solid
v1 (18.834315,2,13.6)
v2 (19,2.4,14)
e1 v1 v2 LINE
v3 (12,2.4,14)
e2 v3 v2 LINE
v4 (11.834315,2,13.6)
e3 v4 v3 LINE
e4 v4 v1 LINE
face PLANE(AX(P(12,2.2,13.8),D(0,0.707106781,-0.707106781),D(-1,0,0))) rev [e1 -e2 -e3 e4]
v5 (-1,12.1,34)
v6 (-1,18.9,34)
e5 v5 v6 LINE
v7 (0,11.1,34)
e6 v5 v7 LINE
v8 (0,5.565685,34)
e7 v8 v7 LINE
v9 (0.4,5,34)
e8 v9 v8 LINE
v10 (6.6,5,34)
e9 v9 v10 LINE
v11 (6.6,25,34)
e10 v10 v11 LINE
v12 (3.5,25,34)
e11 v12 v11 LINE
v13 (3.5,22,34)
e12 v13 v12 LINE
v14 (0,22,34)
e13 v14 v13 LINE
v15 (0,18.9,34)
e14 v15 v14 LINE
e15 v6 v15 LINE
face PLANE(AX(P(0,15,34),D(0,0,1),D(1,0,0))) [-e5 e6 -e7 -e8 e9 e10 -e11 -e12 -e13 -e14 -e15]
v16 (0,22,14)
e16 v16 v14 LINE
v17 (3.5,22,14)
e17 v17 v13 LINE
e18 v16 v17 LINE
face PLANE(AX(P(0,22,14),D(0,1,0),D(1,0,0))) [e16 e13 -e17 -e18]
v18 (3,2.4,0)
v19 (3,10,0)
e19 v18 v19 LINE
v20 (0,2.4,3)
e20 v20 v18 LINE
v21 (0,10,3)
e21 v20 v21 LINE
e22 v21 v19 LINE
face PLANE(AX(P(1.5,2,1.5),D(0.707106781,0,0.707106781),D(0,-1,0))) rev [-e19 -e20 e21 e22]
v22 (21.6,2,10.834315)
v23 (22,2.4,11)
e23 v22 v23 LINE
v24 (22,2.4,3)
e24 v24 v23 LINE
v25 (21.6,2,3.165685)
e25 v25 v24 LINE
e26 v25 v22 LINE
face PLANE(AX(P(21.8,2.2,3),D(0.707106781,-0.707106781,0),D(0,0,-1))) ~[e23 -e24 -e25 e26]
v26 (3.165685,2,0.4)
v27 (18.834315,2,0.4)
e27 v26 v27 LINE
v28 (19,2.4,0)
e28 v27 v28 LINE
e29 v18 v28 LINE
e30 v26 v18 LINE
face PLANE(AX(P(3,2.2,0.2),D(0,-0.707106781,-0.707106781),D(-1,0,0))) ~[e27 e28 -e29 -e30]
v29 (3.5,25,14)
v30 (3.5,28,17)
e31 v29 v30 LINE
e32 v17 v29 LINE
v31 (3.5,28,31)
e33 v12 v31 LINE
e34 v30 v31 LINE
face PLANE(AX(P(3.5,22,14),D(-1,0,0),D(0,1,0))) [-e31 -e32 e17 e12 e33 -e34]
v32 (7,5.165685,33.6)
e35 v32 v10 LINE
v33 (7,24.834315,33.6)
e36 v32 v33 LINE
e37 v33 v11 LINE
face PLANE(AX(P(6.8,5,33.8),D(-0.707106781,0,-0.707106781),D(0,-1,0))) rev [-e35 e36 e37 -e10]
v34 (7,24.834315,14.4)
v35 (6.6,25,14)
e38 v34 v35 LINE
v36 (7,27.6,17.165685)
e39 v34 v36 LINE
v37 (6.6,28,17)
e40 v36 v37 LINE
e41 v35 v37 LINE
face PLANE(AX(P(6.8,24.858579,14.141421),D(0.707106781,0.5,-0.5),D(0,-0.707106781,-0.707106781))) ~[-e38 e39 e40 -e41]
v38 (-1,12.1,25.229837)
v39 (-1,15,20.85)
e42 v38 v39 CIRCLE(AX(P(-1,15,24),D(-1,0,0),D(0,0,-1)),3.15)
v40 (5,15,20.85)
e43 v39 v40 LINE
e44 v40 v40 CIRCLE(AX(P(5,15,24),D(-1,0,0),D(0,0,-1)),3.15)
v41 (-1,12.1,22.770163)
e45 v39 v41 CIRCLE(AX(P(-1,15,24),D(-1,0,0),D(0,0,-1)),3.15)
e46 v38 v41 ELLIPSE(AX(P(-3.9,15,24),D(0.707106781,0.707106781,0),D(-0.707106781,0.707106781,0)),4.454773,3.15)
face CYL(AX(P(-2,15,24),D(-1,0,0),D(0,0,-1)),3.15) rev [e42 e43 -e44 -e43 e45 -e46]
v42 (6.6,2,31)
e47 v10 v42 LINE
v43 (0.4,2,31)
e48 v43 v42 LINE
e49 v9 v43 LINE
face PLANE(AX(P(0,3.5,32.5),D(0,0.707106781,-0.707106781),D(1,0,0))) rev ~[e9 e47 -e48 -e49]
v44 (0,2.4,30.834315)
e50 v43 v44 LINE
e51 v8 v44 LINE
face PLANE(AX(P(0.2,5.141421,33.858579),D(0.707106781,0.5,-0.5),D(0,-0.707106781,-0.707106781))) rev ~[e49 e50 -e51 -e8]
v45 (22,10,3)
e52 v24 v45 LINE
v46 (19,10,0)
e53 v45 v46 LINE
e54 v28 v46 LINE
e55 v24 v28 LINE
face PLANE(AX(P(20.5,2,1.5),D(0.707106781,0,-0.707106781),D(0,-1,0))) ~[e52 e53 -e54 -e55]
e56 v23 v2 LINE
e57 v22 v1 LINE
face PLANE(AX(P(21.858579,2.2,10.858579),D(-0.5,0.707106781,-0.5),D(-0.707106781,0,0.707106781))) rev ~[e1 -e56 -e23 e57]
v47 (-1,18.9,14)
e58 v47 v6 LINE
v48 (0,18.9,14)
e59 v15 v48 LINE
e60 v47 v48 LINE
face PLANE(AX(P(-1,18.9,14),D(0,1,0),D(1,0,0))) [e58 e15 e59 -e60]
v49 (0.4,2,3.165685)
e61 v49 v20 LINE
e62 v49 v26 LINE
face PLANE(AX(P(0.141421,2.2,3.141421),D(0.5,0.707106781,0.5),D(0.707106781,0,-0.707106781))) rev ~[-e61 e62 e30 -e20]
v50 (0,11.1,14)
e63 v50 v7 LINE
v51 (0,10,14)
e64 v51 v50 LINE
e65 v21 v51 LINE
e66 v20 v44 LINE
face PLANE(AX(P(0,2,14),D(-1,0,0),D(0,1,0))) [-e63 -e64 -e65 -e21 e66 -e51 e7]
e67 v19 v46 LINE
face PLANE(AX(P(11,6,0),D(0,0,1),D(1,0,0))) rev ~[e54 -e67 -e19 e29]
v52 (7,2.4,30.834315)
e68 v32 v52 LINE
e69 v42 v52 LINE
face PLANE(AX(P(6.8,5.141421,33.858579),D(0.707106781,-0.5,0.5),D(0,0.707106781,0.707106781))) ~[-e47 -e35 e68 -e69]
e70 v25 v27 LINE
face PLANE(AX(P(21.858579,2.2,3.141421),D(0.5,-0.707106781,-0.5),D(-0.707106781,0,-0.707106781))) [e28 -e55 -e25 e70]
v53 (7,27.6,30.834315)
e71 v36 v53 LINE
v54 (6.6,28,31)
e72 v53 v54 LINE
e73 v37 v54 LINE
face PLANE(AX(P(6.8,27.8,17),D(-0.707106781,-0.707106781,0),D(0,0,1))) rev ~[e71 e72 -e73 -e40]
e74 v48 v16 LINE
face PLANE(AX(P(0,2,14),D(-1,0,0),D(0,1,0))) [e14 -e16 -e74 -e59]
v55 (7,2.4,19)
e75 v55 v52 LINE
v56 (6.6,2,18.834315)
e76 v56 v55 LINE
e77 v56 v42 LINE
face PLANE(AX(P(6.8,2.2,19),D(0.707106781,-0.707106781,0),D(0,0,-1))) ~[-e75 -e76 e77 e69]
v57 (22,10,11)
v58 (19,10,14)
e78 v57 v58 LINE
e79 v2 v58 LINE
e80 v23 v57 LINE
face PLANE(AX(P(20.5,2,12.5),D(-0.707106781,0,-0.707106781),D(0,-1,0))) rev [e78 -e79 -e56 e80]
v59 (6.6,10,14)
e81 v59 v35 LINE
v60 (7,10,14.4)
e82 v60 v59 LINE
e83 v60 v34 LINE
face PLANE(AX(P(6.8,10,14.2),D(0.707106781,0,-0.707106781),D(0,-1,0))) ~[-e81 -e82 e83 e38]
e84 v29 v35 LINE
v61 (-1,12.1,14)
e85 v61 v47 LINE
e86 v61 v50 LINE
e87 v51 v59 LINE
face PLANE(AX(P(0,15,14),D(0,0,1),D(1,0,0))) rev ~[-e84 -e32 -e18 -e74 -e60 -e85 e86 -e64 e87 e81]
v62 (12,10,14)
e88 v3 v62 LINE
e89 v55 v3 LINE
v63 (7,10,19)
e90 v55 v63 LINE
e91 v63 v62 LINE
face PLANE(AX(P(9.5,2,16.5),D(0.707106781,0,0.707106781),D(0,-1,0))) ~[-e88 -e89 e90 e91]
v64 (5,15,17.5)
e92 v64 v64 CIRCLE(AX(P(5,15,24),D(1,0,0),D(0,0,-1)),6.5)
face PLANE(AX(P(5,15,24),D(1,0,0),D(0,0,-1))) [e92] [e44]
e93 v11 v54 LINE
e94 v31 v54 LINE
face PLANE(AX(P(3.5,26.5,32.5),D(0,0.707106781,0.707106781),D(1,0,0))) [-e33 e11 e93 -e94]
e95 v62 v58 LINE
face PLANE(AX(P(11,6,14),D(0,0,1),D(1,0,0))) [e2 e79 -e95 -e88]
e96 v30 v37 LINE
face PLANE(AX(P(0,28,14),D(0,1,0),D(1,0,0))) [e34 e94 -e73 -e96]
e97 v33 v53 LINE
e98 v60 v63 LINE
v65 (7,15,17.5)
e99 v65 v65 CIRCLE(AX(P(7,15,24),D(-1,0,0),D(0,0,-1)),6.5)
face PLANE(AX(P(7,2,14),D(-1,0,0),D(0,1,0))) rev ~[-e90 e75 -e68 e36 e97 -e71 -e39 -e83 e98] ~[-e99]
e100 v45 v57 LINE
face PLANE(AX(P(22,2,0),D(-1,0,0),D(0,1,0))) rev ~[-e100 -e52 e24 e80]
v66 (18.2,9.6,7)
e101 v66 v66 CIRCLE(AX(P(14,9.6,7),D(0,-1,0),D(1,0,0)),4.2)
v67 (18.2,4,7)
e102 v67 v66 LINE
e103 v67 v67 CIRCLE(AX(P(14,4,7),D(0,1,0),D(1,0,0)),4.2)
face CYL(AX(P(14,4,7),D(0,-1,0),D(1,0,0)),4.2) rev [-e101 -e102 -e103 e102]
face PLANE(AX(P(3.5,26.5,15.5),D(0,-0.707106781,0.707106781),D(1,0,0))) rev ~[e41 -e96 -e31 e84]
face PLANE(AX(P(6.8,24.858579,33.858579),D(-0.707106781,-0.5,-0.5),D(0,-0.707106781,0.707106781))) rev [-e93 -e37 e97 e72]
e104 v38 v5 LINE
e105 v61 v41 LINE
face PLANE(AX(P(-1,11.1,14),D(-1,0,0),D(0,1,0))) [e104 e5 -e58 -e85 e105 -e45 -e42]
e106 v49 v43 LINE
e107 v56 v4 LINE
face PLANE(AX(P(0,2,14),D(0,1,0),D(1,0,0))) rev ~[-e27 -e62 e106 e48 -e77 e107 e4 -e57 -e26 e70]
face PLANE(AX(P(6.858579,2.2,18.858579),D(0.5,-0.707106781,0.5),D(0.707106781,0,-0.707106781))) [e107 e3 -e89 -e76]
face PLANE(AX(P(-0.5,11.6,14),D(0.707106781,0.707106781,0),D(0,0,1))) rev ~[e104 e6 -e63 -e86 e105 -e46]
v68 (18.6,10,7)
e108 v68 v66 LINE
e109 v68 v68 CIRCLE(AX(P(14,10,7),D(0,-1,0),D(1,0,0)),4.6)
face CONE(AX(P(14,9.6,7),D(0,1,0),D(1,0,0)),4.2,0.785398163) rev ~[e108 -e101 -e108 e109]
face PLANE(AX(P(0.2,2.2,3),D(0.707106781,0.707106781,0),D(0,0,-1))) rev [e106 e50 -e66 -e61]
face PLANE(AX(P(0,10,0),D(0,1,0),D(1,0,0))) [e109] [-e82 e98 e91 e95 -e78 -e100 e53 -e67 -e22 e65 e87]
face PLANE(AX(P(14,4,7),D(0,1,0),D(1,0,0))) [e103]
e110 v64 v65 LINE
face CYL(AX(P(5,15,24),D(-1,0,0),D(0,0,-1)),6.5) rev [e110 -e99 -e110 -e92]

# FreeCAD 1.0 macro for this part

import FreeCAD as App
import Part
import Sketcher

V = App.Vector
Q = App.Units.Quantity


def edges_at(feature, points):
    """Names of the edges that pass closest to the given points."""
    edges = feature.Shape.Edges
    near = lambda p: min(range(len(edges)), key=lambda i: edges[i].distToShape(Part.Vertex(*p))[0])
    return sorted({f"Edge{near(p) + 1}" for p in points})

doc = App.newDocument("Part")
body = doc.addObject("PartDesign::Body", "Body")

# Sketch on XZ plane
sketch1 = body.newObject("Sketcher::SketchObject", "Sketch")
sketch1.AttachmentSupport = (doc.getObject("XZ_Plane"), [""])
sketch1.MapMode = "FlatFace"
sketch1.AttachmentOffset = App.Placement(V(0, 0, -4), App.Rotation())
sketch1.addGeometry(Part.Circle(V(14, 7, 0), V(0, 0, 1), 4.2), False)
sketch1.addConstraint([
    Sketcher.Constraint("Diameter", 0, Q("8.4 mm")),
    Sketcher.Constraint("DistanceX", -1, 1, 0, 3, Q("14 mm")),
    Sketcher.Constraint("DistanceY", -1, 1, 0, 3, Q("7 mm")),
])
pad1 = body.newObject("PartDesign::Pad", "Pad")
pad1.Profile = sketch1
pad1.Length = 10
pad1.Reversed = True
body2 = doc.addObject("PartDesign::Body", "Body001")

# Sketch on YZ plane
sketch2 = body2.newObject("Sketcher::SketchObject", "Sketch001")
sketch2.AttachmentSupport = (doc.getObject("YZ_Plane001"), [""])
sketch2.MapMode = "FlatFace"
sketch2.AttachmentOffset = App.Placement(V(0, 0, 5), App.Rotation())
sketch2.addGeometry(Part.Circle(V(15, 24, 0), V(0, 0, 1), 6), False)
sketch2.addConstraint([
    Sketcher.Constraint("Diameter", 0, Q("13 mm")),
    Sketcher.Constraint("DistanceX", -1, 1, 0, 3, Q("15 mm")),
    Sketcher.Constraint("DistanceY", -1, 1, 0, 3, Q("24 mm")),
])
pad2 = body2.newObject("PartDesign::Pad", "Pad001")
pad2.Profile = sketch2
pad2.Length = 10
body3 = doc.addObject("PartDesign::Body", "Body002")

# Sketch on YZ plane
sketch3 = body3.newObject("Sketcher::SketchObject", "Sketch002")
sketch3.AttachmentSupport = (doc.getObject("YZ_Plane002"), [""])
sketch3.MapMode = "FlatFace"
sketch3.AttachmentOffset = App.Placement(V(0, 0, -2), App.Rotation())
sketch3.addGeometry(Part.Circle(V(15, 24, 0), V(0, 0, 1), 3.1), False)
sketch3.addConstraint([
    Sketcher.Constraint("Diameter", 0, Q("6.3 mm")),
    Sketcher.Constraint("DistanceX", -1, 1, 0, 3, Q("15 mm")),
    Sketcher.Constraint("DistanceY", -1, 1, 0, 3, Q("24 mm")),
])
pad3 = body3.newObject("PartDesign::Pad", "Pad002")
pad3.Profile = sketch3
pad3.Length = 10
doc.recompute()

boolean = body3.newObject("PartDesign::Boolean", "Boolean")
boolean.Type = "Fuse"
boolean.addObjects([body2])
body4 = doc.addObject("PartDesign::Body", "Body003")

# Sketch on XY plane
sketch4 = body4.newObject("Sketcher::SketchObject", "Sketch003")
sketch4.AttachmentSupport = (doc.getObject("XY_Plane003"), [""])
sketch4.MapMode = "FlatFace"
sketch4.AttachmentOffset = App.Placement(V(0, 0, 14), App.Rotation())
sketch4.addGeometry([
    Part.LineSegment(V(0, 30, 0), V(0, 22, 0)),
    Part.LineSegment(V(0, 22, 0), V(3.5, 22, 0)),
    Part.LineSegment(V(3.5, 22, 0), V(3.5, 30, 0)),
    Part.LineSegment(V(3.5, 30, 0), V(0, 30, 0)),
], False)
sketch4.addConstraint([
    Sketcher.Constraint("Coincident", 0, 2, 1, 1),
    Sketcher.Constraint("Coincident", 1, 2, 2, 1),
    Sketcher.Constraint("Coincident", 2, 2, 3, 1),
    Sketcher.Constraint("Coincident", 3, 2, 0, 1),
    Sketcher.Constraint("Vertical", 0),
    Sketcher.Constraint("Horizontal", 1),
    Sketcher.Constraint("Vertical", 2),
    Sketcher.Constraint("Horizontal", 3),
    Sketcher.Constraint("PointOnObject", 0, 2, -2),
    Sketcher.Constraint("DistanceY", 0, 2, 0, 1, Q("8 mm")),
    Sketcher.Constraint("DistanceX", 1, 1, 1, 2, Q("3.5 mm")),
    Sketcher.Constraint("DistanceY", -1, 1, 0, 2, Q("22 mm")),
])
pad4 = body4.newObject("PartDesign::Pad", "Pad003")
pad4.Profile = sketch4
pad4.Length = 20
body5 = doc.addObject("PartDesign::Body", "Body004")

# Sketch on XY plane
sketch5 = body5.newObject("Sketcher::SketchObject", "Sketch004")
sketch5.AttachmentSupport = (doc.getObject("XY_Plane004"), [""])
sketch5.MapMode = "FlatFace"
sketch5.AttachmentOffset = App.Placement(V(0, 0, 14), App.Rotation())
sketch5.addGeometry([
    Part.LineSegment(V(0, 28, 0), V(0, 2, 0)),
    Part.LineSegment(V(0, 2, 0), V(7, 2, 0)),
    Part.LineSegment(V(7, 2, 0), V(7, 28, 0)),
    Part.LineSegment(V(7, 28, 0), V(0, 28, 0)),
], False)
sketch5.addConstraint([
    Sketcher.Constraint("Coincident", 0, 2, 1, 1),
    Sketcher.Constraint("Coincident", 1, 2, 2, 1),
    Sketcher.Constraint("Coincident", 2, 2, 3, 1),
    Sketcher.Constraint("Coincident", 3, 2, 0, 1),
    Sketcher.Constraint("Vertical", 0),
    Sketcher.Constraint("Horizontal", 1),
    Sketcher.Constraint("Vertical", 2),
    Sketcher.Constraint("Horizontal", 3),
    Sketcher.Constraint("PointOnObject", 0, 2, -2),
    Sketcher.Constraint("DistanceX", 1, 1, 1, 2, Q("7 mm")),
    Sketcher.Constraint("DistanceY", 0, 2, 0, 1, Q("26 mm")),
    Sketcher.Constraint("DistanceY", -1, 1, 0, 2, Q("2 mm")),
])
pad5 = body5.newObject("PartDesign::Pad", "Pad004")
pad5.Profile = sketch5
pad5.Length = 20
doc.recompute()

boolean2 = body5.newObject("PartDesign::Boolean", "Boolean001")
boolean2.Type = "Cut"
boolean2.addObjects([body4])
doc.recompute()

chamfer = body5.newObject("PartDesign::Chamfer", "Chamfer")
chamfer.Base = (boolean2, edges_at(boolean2, [(5.25, 28, 34), (3.5, 2, 34), (5.25, 28, 14)]))
chamfer.Size = 3
body6 = doc.addObject("PartDesign::Body", "Body005")

# Sketch on XY plane
sketch6 = body6.newObject("Sketcher::SketchObject", "Sketch005")
sketch6.AttachmentSupport = (doc.getObject("XY_Plane005"), [""])
sketch6.MapMode = "FlatFace"
sketch6.AttachmentOffset = App.Placement(V(0, 0, 14), App.Rotation())
sketch6.addGeometry([
    Part.LineSegment(V(-1, 18.9, 0), V(-1, 11.1, 0)),
    Part.LineSegment(V(-1, 11.1, 0), V(1, 11.1, 0)),
    Part.LineSegment(V(1, 11.1, 0), V(1, 18.9, 0)),
    Part.LineSegment(V(1, 18.9, 0), V(-1, 18.9, 0)),
], False)
sketch6.addConstraint([
    Sketcher.Constraint("Coincident", 0, 2, 1, 1),
    Sketcher.Constraint("Coincident", 1, 2, 2, 1),
    Sketcher.Constraint("Coincident", 2, 2, 3, 1),
    Sketcher.Constraint("Coincident", 3, 2, 0, 1),
    Sketcher.Constraint("Vertical", 0),
    Sketcher.Constraint("Horizontal", 1),
    Sketcher.Constraint("Vertical", 2),
    Sketcher.Constraint("Horizontal", 3),
    Sketcher.Constraint("DistanceX", 1, 1, 1, 2, Q("2 mm")),
    Sketcher.Constraint("DistanceY", 0, 2, 0, 1, Q("7.8 mm")),
    Sketcher.Constraint("DistanceX", 0, 2, -1, 1, Q("1 mm")),
    Sketcher.Constraint("DistanceY", -1, 1, 0, 2, Q("11.1 mm")),
])
pad6 = body6.newObject("PartDesign::Pad", "Pad005")
pad6.Profile = sketch6
pad6.Length = 20
doc.recompute()

chamfer2 = body6.newObject("PartDesign::Chamfer", "Chamfer001")
chamfer2.Base = (pad6, edges_at(pad6, [(-1, 11.1, 24)]))
chamfer2.Size = 1
body7 = doc.addObject("PartDesign::Body", "Body006")

# Sketch on XY plane
sketch7 = body7.newObject("Sketcher::SketchObject", "Sketch006")
sketch7.AttachmentSupport = (doc.getObject("XY_Plane006"), [""])
sketch7.MapMode = "FlatFace"
sketch7.addGeometry([
    Part.LineSegment(V(0, 10, 0), V(0, 2, 0)),
    Part.LineSegment(V(0, 2, 0), V(22, 2, 0)),
    Part.LineSegment(V(22, 2, 0), V(22, 10, 0)),
    Part.LineSegment(V(22, 10, 0), V(0, 10, 0)),
], False)
sketch7.addConstraint([
    Sketcher.Constraint("Coincident", 0, 2, 1, 1),
    Sketcher.Constraint("Coincident", 1, 2, 2, 1),
    Sketcher.Constraint("Coincident", 2, 2, 3, 1),
    Sketcher.Constraint("Coincident", 3, 2, 0, 1),
    Sketcher.Constraint("Vertical", 0),
    Sketcher.Constraint("Horizontal", 1),
    Sketcher.Constraint("Vertical", 2),
    Sketcher.Constraint("Horizontal", 3),
    Sketcher.Constraint("PointOnObject", 0, 2, -2),
    Sketcher.Constraint("DistanceX", 1, 1, 1, 2, Q("22 mm")),
    Sketcher.Constraint("DistanceY", 0, 2, 0, 1, Q("8 mm")),
    Sketcher.Constraint("DistanceY", -1, 1, 0, 2, Q("2 mm")),
])
pad7 = body7.newObject("PartDesign::Pad", "Pad006")
pad7.Profile = sketch7
pad7.Length = 14
doc.recompute()

chamfer3 = body7.newObject("PartDesign::Chamfer", "Chamfer002")
chamfer3.Base = (pad7, edges_at(pad7, [(0, 6, 0), (22, 6, 14), (22, 6, 0)]))
chamfer3.Size = 3
doc.recompute()

boolean3 = body7.newObject("PartDesign::Boolean", "Boolean002")
boolean3.Type = "Fuse"
boolean3.addObjects([body5])
doc.recompute()

boolean4 = body7.newObject("PartDesign::Boolean", "Boolean003")
boolean4.Type = "Fuse"
boolean4.addObjects([body6])
doc.recompute()

chamfer4 = body7.newObject("PartDesign::Chamfer", "Chamfer003")
chamfer4.Base = (boolean4, edges_at(boolean4, [(7, 6, 14)]))
chamfer4.Size = 5
doc.recompute()

boolean5 = body7.newObject("PartDesign::Boolean", "Boolean004")
boolean5.Type = "Cut"
boolean5.addObjects([body3])
doc.recompute()

boolean6 = body7.newObject("PartDesign::Boolean", "Boolean005")
boolean6.Type = "Cut"
boolean6.addObjects([body])
doc.recompute()

chamfer5 = body7.newObject("PartDesign::Chamfer", "Chamfer004")
chamfer5.Base = (boolean6, edges_at(boolean6, [
    (15.5, 2, 14),
    (20.5, 2, 12.5),
    (22, 2, 7),
    (20.5, 2, 1.5),
    (11, 2, 0),
    (1.5, 2, 1.5),
    (9.8, 10, 7),
    (9.5, 2, 16.5),
    (7, 2, 25),
    (7, 3.5, 32.5),
    (7, 15, 34),
    (7, 17.5, 14),
    (7, 26.5, 32.5),
    (7, 26.5, 15.5),
    (7, 28, 24),
    (0, 3.5, 32.5),
    (0, 2, 17),
]))
chamfer5.Size = 0.4

doc.recompute()
